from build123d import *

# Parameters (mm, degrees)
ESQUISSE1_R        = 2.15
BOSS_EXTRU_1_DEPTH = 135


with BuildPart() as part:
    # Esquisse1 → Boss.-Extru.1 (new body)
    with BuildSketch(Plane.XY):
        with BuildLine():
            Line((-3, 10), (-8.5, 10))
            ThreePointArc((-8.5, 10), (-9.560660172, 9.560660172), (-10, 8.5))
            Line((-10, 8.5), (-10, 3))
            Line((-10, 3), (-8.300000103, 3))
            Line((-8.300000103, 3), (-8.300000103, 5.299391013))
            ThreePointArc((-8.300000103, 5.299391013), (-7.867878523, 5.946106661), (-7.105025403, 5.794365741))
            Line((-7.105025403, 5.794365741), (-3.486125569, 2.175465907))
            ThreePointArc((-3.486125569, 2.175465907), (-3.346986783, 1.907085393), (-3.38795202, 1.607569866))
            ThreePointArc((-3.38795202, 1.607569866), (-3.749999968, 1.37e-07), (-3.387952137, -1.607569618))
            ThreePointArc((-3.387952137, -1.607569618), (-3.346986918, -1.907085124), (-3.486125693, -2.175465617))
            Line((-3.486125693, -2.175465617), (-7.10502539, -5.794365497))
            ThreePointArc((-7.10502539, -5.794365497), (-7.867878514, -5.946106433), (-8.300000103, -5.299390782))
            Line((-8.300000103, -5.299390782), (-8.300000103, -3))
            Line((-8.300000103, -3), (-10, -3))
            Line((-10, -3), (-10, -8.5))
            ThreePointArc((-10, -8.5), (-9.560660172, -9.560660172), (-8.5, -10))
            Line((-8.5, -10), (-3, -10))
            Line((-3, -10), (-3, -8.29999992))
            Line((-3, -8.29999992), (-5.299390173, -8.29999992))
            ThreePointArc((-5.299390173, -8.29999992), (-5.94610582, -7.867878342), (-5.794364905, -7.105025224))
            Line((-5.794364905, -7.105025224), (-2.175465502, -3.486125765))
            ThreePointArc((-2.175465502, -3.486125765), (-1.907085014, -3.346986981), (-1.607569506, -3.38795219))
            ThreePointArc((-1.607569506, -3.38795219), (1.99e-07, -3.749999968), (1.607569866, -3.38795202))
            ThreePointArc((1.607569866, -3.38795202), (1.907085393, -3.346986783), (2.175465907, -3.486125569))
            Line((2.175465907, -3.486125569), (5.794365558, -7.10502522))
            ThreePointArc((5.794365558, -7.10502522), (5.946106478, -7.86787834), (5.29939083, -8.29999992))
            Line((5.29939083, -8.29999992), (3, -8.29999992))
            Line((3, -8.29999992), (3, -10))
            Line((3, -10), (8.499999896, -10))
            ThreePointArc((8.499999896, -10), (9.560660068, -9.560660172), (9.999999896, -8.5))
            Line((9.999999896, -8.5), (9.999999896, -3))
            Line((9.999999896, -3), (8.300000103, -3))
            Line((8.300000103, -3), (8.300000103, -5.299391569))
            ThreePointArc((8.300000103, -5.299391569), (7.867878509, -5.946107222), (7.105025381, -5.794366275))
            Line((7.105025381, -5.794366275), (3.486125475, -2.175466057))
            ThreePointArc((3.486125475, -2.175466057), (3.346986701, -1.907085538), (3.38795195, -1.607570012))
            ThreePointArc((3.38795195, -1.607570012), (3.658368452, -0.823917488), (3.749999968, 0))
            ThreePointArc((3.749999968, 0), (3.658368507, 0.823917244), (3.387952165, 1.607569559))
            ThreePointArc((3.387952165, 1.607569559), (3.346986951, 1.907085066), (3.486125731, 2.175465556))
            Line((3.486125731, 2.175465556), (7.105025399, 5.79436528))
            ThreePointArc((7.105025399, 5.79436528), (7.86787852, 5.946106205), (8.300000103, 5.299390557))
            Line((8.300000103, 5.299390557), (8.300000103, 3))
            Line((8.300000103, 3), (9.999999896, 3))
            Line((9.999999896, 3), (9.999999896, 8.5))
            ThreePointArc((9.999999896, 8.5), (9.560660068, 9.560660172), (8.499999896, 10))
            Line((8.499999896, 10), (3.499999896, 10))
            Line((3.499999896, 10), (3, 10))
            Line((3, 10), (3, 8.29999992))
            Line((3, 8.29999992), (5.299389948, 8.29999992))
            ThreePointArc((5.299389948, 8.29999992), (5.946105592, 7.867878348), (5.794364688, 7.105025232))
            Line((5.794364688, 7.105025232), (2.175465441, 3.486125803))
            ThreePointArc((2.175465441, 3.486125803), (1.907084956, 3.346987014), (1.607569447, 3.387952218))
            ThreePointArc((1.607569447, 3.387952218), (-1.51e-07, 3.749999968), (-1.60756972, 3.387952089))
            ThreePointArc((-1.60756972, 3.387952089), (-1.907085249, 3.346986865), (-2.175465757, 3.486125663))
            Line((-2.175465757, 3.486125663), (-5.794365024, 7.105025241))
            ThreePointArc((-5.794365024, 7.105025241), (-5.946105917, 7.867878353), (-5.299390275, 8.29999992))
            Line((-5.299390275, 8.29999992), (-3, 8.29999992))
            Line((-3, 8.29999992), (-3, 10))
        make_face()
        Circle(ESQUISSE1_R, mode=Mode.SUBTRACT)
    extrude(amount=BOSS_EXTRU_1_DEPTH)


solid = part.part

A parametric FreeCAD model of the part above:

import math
import FreeCAD as App
import Part
import Sketcher
Q = App.Units.Quantity

doc = App.newDocument("Part")
body = doc.addObject("PartDesign::Body", "Body")

# Sketch on XY plane
sketch1 = body.newObject("Sketcher::SketchObject", "Sketch")
sketch1.AttachmentSupport = (doc.getObject("XY_Plane"), [""])
sketch1.MapMode = "FlatFace"
sketch1.addGeometry(Part.LineSegment(App.Vector(-3, 10, 0), App.Vector(-8.5, 10, 0)), False)
sketch1.addGeometry(Part.ArcOfCircle(Part.Circle(App.Vector(-8.5, 8.5, 0), App.Vector(0, 0, 1), 1.5), math.radians(90), math.radians(180)), False)
sketch1.addGeometry(Part.LineSegment(App.Vector(-10, 8.5, 0), App.Vector(-10, 3, 0)), False)
sketch1.addGeometry(Part.LineSegment(App.Vector(-10, 3, 0), App.Vector(-8.3, 3, 0)), False)
sketch1.addGeometry(Part.LineSegment(App.Vector(-8.3, 3, 0), App.Vector(-8.3, 5.299391, 0)), False)
sketch1.addGeometry(Part.ArcOfCircle(Part.Circle(App.Vector(-7.6, 5.299391, 0), App.Vector(0, 0, 1), 0.7), math.radians(45), math.radians(180)), False)
sketch1.addGeometry(Part.LineSegment(App.Vector(-7.105025, 5.794366, 0), App.Vector(-3.486126, 2.175466, 0)), False)
sketch1.addGeometry(Part.ArcOfCircle(Part.Circle(App.Vector(-3.839679, 1.821913, 0), App.Vector(0, 0, 1), 0.5), math.radians(-25.384155), math.radians(45)), False)
sketch1.addGeometry(Part.ArcOfCircle(Part.Circle(App.Vector(0, 0, 0), App.Vector(0, 0, 1), 3.75), math.radians(154.615845), math.radians(205.384151)), False)
sketch1.addGeometry(Part.ArcOfCircle(Part.Circle(App.Vector(-3.839679, -1.821912, 0), App.Vector(0, 0, 1), 0.5), math.radians(-44.999999), math.radians(25.384151)), False)
sketch1.addGeometry(Part.LineSegment(App.Vector(-3.486126, -2.175466, 0), App.Vector(-7.105025, -5.794365, 0)), False)
sketch1.addGeometry(Part.ArcOfCircle(Part.Circle(App.Vector(-7.6, -5.299391, 0), App.Vector(0, 0, 1), 0.7), math.radians(180), math.radians(315.000001)), False)
sketch1.addGeometry(Part.LineSegment(App.Vector(-8.3, -5.299391, 0), App.Vector(-8.3, -3, 0)), False)
sketch1.addGeometry(Part.LineSegment(App.Vector(-8.3, -3, 0), App.Vector(-10, -3, 0)), False)
sketch1.addGeometry(Part.LineSegment(App.Vector(-10, -3, 0), App.Vector(-10, -8.5, 0)), False)
sketch1.addGeometry(Part.ArcOfCircle(Part.Circle(App.Vector(-8.5, -8.5, 0), App.Vector(0, 0, 1), 1.5), math.radians(180), math.radians(270)), False)
sketch1.addGeometry(Part.LineSegment(App.Vector(-8.5, -10, 0), App.Vector(-3, -10, 0)), False)
sketch1.addGeometry(Part.LineSegment(App.Vector(-3, -10, 0), App.Vector(-3, -8.3, 0)), False)
sketch1.addGeometry(Part.LineSegment(App.Vector(-3, -8.3, 0), App.Vector(-5.29939, -8.3, 0)), False)
sketch1.addGeometry(Part.ArcOfCircle(Part.Circle(App.Vector(-5.29939, -7.6, 0), App.Vector(0, 0, 1), 0.7), math.radians(135), math.radians(270)), False)
sketch1.addGeometry(Part.LineSegment(App.Vector(-5.794365, -7.105025, 0), App.Vector(-2.175466, -3.486126, 0)), False)
sketch1.addGeometry(Part.ArcOfCircle(Part.Circle(App.Vector(-1.821912, -3.839679, 0), App.Vector(0, 0, 1), 0.5), math.radians(64.615851), math.radians(135)), False)
sketch1.addGeometry(Part.ArcOfCircle(Part.Circle(App.Vector(0, 0, 0), App.Vector(0, 0, 1), 3.75), math.radians(-115.384149), math.radians(-64.615845)), False)
sketch1.addGeometry(Part.ArcOfCircle(Part.Circle(App.Vector(1.821913, -3.839679, 0), App.Vector(0, 0, 1), 0.5), math.radians(45), math.radians(115.384155)), False)
sketch1.addGeometry(Part.LineSegment(App.Vector(2.175466, -3.486126, 0), App.Vector(5.794366, -7.105025, 0)), False)
sketch1.addGeometry(Part.ArcOfCircle(Part.Circle(App.Vector(5.299391, -7.6, 0), App.Vector(0, 0, 1), 0.7), math.radians(-90), math.radians(45)), False)
sketch1.addGeometry(Part.LineSegment(App.Vector(5.299391, -8.3, 0), App.Vector(3, -8.3, 0)), False)
sketch1.addGeometry(Part.LineSegment(App.Vector(3, -8.3, 0), App.Vector(3, -10, 0)), False)
sketch1.addGeometry(Part.LineSegment(App.Vector(3, -10, 0), App.Vector(8.5, -10, 0)), False)
sketch1.addGeometry(Part.ArcOfCircle(Part.Circle(App.Vector(8.5, -8.5, 0), App.Vector(0, 0, 1), 1.5), math.radians(-90), math.radians(0)), False)
sketch1.addGeometry(Part.LineSegment(App.Vector(10, -8.5, 0), App.Vector(10, -3, 0)), False)
sketch1.addGeometry(Part.LineSegment(App.Vector(10, -3, 0), App.Vector(8.3, -3, 0)), False)
sketch1.addGeometry(Part.LineSegment(App.Vector(8.3, -3, 0), App.Vector(8.3, -5.299392, 0)), False)
sketch1.addGeometry(Part.ArcOfCircle(Part.Circle(App.Vector(7.6, -5.299392, 0), App.Vector(0, 0, 1), 0.7), math.radians(-135.000002), math.radians(0)), False)
sketch1.addGeometry(Part.LineSegment(App.Vector(7.105025, -5.794366, 0), App.Vector(3.486125, -2.175466, 0)), False)
sketch1.addGeometry(Part.ArcOfCircle(Part.Circle(App.Vector(3.839679, -1.821913, 0), App.Vector(0, 0, 1), 0.5), math.radians(154.615843), math.radians(224.999997)), False)
sketch1.addGeometry(Part.ArcOfCircle(Part.Circle(App.Vector(0, 0, 0), App.Vector(0, 0, 1), 3.75), math.radians(-25.384157), math.radians(0)), False)
sketch1.addGeometry(Part.ArcOfCircle(Part.Circle(App.Vector(0, 0, 0), App.Vector(0, 0, 1), 3.75), math.radians(0), math.radians(25.38415)), False)
sketch1.addGeometry(Part.ArcOfCircle(Part.Circle(App.Vector(3.839679, 1.821912, 0), App.Vector(0, 0, 1), 0.5), math.radians(135), math.radians(205.38415)), False)
sketch1.addGeometry(Part.LineSegment(App.Vector(3.486126, 2.175466, 0), App.Vector(7.105025, 5.794365, 0)), False)
sketch1.addGeometry(Part.ArcOfCircle(Part.Circle(App.Vector(7.6, 5.299391, 0), App.Vector(0, 0, 1), 0.7), math.radians(0), math.radians(135)), False)
sketch1.addGeometry(Part.LineSegment(App.Vector(8.3, 5.299391, 0), App.Vector(8.3, 3, 0)), False)
sketch1.addGeometry(Part.LineSegment(App.Vector(8.3, 3, 0), App.Vector(10, 3, 0)), False)
sketch1.addGeometry(Part.LineSegment(App.Vector(10, 3, 0), App.Vector(10, 8.5, 0)), False)
sketch1.addGeometry(Part.ArcOfCircle(Part.Circle(App.Vector(8.5, 8.5, 0), App.Vector(0, 0, 1), 1.5), math.radians(0), math.radians(90)), False)
sketch1.addGeometry(Part.LineSegment(App.Vector(8.5, 10, 0), App.Vector(3, 10, 0)), False)
sketch1.addGeometry(Part.LineSegment(App.Vector(3, 10, 0), App.Vector(3, 8.3, 0)), False)
sketch1.addGeometry(Part.LineSegment(App.Vector(3, 8.3, 0), App.Vector(5.29939, 8.3, 0)), False)
sketch1.addGeometry(Part.ArcOfCircle(Part.Circle(App.Vector(5.29939, 7.6, 0), App.Vector(0, 0, 1), 0.7), math.radians(-44.999999), math.radians(90)), False)
sketch1.addGeometry(Part.LineSegment(App.Vector(5.794365, 7.105025, 0), App.Vector(2.175465, 3.486126, 0)), False)
sketch1.addGeometry(Part.ArcOfCircle(Part.Circle(App.Vector(1.821912, 3.839679, 0), App.Vector(0, 0, 1), 0.5), math.radians(-115.384148), math.radians(-44.999998)), False)
sketch1.addGeometry(Part.ArcOfCircle(Part.Circle(App.Vector(0, 0, 0), App.Vector(0, 0, 1), 3.75), math.radians(64.615852), math.radians(115.384152)), False)
sketch1.addGeometry(Part.ArcOfCircle(Part.Circle(App.Vector(-1.821912, 3.839679, 0), App.Vector(0, 0, 1), 0.5), math.radians(-135.000003), math.radians(-64.615848)), False)
sketch1.addGeometry(Part.LineSegment(App.Vector(-2.175466, 3.486126, 0), App.Vector(-5.794365, 7.105025, 0)), False)
sketch1.addGeometry(Part.ArcOfCircle(Part.Circle(App.Vector(-5.29939, 7.6, 0), App.Vector(0, 0, 1), 0.7), math.radians(90), math.radians(224.999998)), False)
sketch1.addGeometry(Part.LineSegment(App.Vector(-5.29939, 8.3, 0), App.Vector(-3, 8.3, 0)), False)
sketch1.addGeometry(Part.LineSegment(App.Vector(-3, 8.3, 0), App.Vector(-3, 10, 0)), False)
sketch1.addGeometry(Part.Circle(App.Vector(0, 0, 0), App.Vector(0, 0, 1), 2.15), False)
sketch1.addConstraint(Sketcher.Constraint("Tangent", 0, 2, 1, 1))
sketch1.addConstraint(Sketcher.Constraint("Tangent", 1, 2, 2, 1))
sketch1.addConstraint(Sketcher.Constraint("Coincident", 2, 2, 3, 1))
sketch1.addConstraint(Sketcher.Constraint("Coincident", 3, 2, 4, 1))
sketch1.addConstraint(Sketcher.Constraint("Tangent", 4, 2, 5, 2))
sketch1.addConstraint(Sketcher.Constraint("Tangent", 5, 1, 6, 1))
sketch1.addConstraint(Sketcher.Constraint("Tangent", 6, 2, 7, 2))
sketch1.addConstraint(Sketcher.Constraint("Tangent", 7, 1, 8, 1))
sketch1.addConstraint(Sketcher.Constraint("Tangent", 8, 2, 9, 2))
sketch1.addConstraint(Sketcher.Constraint("Tangent", 9, 1, 10, 1))
sketch1.addConstraint(Sketcher.Constraint("Tangent", 10, 2, 11, 2))
sketch1.addConstraint(Sketcher.Constraint("Tangent", 11, 1, 12, 1))
sketch1.addConstraint(Sketcher.Constraint("Coincident", 12, 2, 13, 1))
sketch1.addConstraint(Sketcher.Constraint("Coincident", 13, 2, 14, 1))
sketch1.addConstraint(Sketcher.Constraint("Tangent", 14, 2, 15, 1))
sketch1.addConstraint(Sketcher.Constraint("Tangent", 15, 2, 16, 1))
sketch1.addConstraint(Sketcher.Constraint("Coincident", 16, 2, 17, 1))
sketch1.addConstraint(Sketcher.Constraint("Coincident", 17, 2, 18, 1))
sketch1.addConstraint(Sketcher.Constraint("Tangent", 18, 2, 19, 2))
sketch1.addConstraint(Sketcher.Constraint("Tangent", 19, 1, 20, 1))
sketch1.addConstraint(Sketcher.Constraint("Tangent", 20, 2, 21, 2))
sketch1.addConstraint(Sketcher.Constraint("Tangent", 21, 1, 22, 1))
sketch1.addConstraint(Sketcher.Constraint("Tangent", 22, 2, 23, 2))
sketch1.addConstraint(Sketcher.Constraint("Tangent", 23, 1, 24, 1))
sketch1.addConstraint(Sketcher.Constraint("Tangent", 24, 2, 25, 2))
sketch1.addConstraint(Sketcher.Constraint("Tangent", 25, 1, 26, 1))
sketch1.addConstraint(Sketcher.Constraint("Coincident", 26, 2, 27, 1))
sketch1.addConstraint(Sketcher.Constraint("Coincident", 27, 2, 28, 1))
sketch1.addConstraint(Sketcher.Constraint("Tangent", 28, 2, 29, 1))
sketch1.addConstraint(Sketcher.Constraint("Tangent", 29, 2, 30, 1))
sketch1.addConstraint(Sketcher.Constraint("Coincident", 30, 2, 31, 1))
sketch1.addConstraint(Sketcher.Constraint("Coincident", 31, 2, 32, 1))
sketch1.addConstraint(Sketcher.Constraint("Tangent", 32, 2, 33, 2))
sketch1.addConstraint(Sketcher.Constraint("Tangent", 33, 1, 34, 1))
sketch1.addConstraint(Sketcher.Constraint("Tangent", 34, 2, 35, 2))
sketch1.addConstraint(Sketcher.Constraint("Tangent", 35, 1, 36, 1))
sketch1.addConstraint(Sketcher.Constraint("Tangent", 36, 2, 37, 1))
sketch1.addConstraint(Sketcher.Constraint("Tangent", 37, 2, 38, 2))
sketch1.addConstraint(Sketcher.Constraint("Tangent", 38, 1, 39, 1))
sketch1.addConstraint(Sketcher.Constraint("Tangent", 39, 2, 40, 2))
sketch1.addConstraint(Sketcher.Constraint("Tangent", 40, 1, 41, 1))
sketch1.addConstraint(Sketcher.Constraint("Coincident", 41, 2, 42, 1))
sketch1.addConstraint(Sketcher.Constraint("Coincident", 42, 2, 43, 1))
sketch1.addConstraint(Sketcher.Constraint("Tangent", 43, 2, 44, 1))
sketch1.addConstraint(Sketcher.Constraint("Tangent", 44, 2, 45, 1))
sketch1.addConstraint(Sketcher.Constraint("Coincident", 45, 2, 46, 1))
sketch1.addConstraint(Sketcher.Constraint("Coincident", 46, 2, 47, 1))
sketch1.addConstraint(Sketcher.Constraint("Tangent", 47, 2, 48, 2))
sketch1.addConstraint(Sketcher.Constraint("Tangent", 48, 1, 49, 1))
sketch1.addConstraint(Sketcher.Constraint("Tangent", 49, 2, 50, 2))
sketch1.addConstraint(Sketcher.Constraint("Tangent", 50, 1, 51, 1))
sketch1.addConstraint(Sketcher.Constraint("Tangent", 51, 2, 52, 2))
sketch1.addConstraint(Sketcher.Constraint("Tangent", 52, 1, 53, 1))
sketch1.addConstraint(Sketcher.Constraint("Tangent", 53, 2, 54, 2))
sketch1.addConstraint(Sketcher.Constraint("Tangent", 54, 1, 55, 1))
sketch1.addConstraint(Sketcher.Constraint("Coincident", 55, 2, 56, 1))
sketch1.addConstraint(Sketcher.Constraint("Coincident", 56, 2, 0, 1))
sketch1.addConstraint(Sketcher.Constraint("Horizontal", 0))
sketch1.addConstraint(Sketcher.Constraint("Vertical", 2))
sketch1.addConstraint(Sketcher.Constraint("Horizontal", 3))
sketch1.addConstraint(Sketcher.Constraint("Vertical", 4))
sketch1.addConstraint(Sketcher.Constraint("Vertical", 12))
sketch1.addConstraint(Sketcher.Constraint("Horizontal", 13))
sketch1.addConstraint(Sketcher.Constraint("Vertical", 14))
sketch1.addConstraint(Sketcher.Constraint("Horizontal", 16))
sketch1.addConstraint(Sketcher.Constraint("Vertical", 17))
sketch1.addConstraint(Sketcher.Constraint("Horizontal", 18))
sketch1.addConstraint(Sketcher.Constraint("Horizontal", 26))
sketch1.addConstraint(Sketcher.Constraint("Vertical", 27))
sketch1.addConstraint(Sketcher.Constraint("Horizontal", 28))
sketch1.addConstraint(Sketcher.Constraint("Vertical", 30))
sketch1.addConstraint(Sketcher.Constraint("Horizontal", 31))
sketch1.addConstraint(Sketcher.Constraint("Vertical", 32))
sketch1.addConstraint(Sketcher.Constraint("Vertical", 41))
sketch1.addConstraint(Sketcher.Constraint("Horizontal", 42))
sketch1.addConstraint(Sketcher.Constraint("Vertical", 43))
sketch1.addConstraint(Sketcher.Constraint("Horizontal", 45))
sketch1.addConstraint(Sketcher.Constraint("Vertical", 46))
sketch1.addConstraint(Sketcher.Constraint("Horizontal", 47))
sketch1.addConstraint(Sketcher.Constraint("Horizontal", 55))
sketch1.addConstraint(Sketcher.Constraint("Vertical", 56))
sketch1.addConstraint(Sketcher.Constraint("Coincident", 8, 3, -1, 1))
sketch1.addConstraint(Sketcher.Constraint("Coincident", 22, 3, -1, 1))
sketch1.addConstraint(Sketcher.Constraint("Coincident", 36, 3, -1, 1))
sketch1.addConstraint(Sketcher.Constraint("Coincident", 51, 3, -1, 1))
sketch1.addConstraint(Sketcher.Constraint("Coincident", 57, 3, -1, 1))
sketch1.addConstraint(Sketcher.Constraint("Equal", 7, 9))
sketch1.addConstraint(Sketcher.Constraint("Equal", 5, 11))
sketch1.addConstraint(Sketcher.Constraint("Equal", 1, 15))
sketch1.addConstraint(Sketcher.Constraint("Equal", 11, 19))
sketch1.addConstraint(Sketcher.Constraint("Equal", 9, 21))
sketch1.addConstraint(Sketcher.Constraint("Equal", 8, 22))
sketch1.addConstraint(Sketcher.Constraint("Equal", 21, 23))
sketch1.addConstraint(Sketcher.Constraint("Equal", 19, 25))
sketch1.addConstraint(Sketcher.Constraint("Equal", 15, 29))
sketch1.addConstraint(Sketcher.Constraint("Equal", 25, 33))
sketch1.addConstraint(Sketcher.Constraint("Equal", 23, 35))
sketch1.addConstraint(Sketcher.Constraint("Equal", 22, 36))
sketch1.addConstraint(Sketcher.Constraint("Equal", 36, 37))
sketch1.addConstraint(Sketcher.Constraint("Equal", 35, 38))
sketch1.addConstraint(Sketcher.Constraint("Equal", 33, 40))
sketch1.addConstraint(Sketcher.Constraint("Equal", 29, 44))
sketch1.addConstraint(Sketcher.Constraint("Equal", 40, 48))
sketch1.addConstraint(Sketcher.Constraint("Equal", 38, 50))
sketch1.addConstraint(Sketcher.Constraint("Equal", 37, 51))
sketch1.addConstraint(Sketcher.Constraint("Equal", 50, 52))
sketch1.addConstraint(Sketcher.Constraint("Equal", 48, 54))
sketch1.addConstraint(Sketcher.Constraint("Symmetric", 1, 3, 29, 3, -1, 1))
sketch1.addConstraint(Sketcher.Constraint("Symmetric", 5, 3, 33, 3, -1, 1))
sketch1.addConstraint(Sketcher.Constraint("Symmetric", 11, 3, 40, 3, -1, 1))
sketch1.addConstraint(Sketcher.Constraint("Symmetric", 15, 3, 44, 3, -1, 1))
sketch1.addConstraint(Sketcher.Constraint("Symmetric", 19, 3, 48, 3, -1, 1))
sketch1.addConstraint(Sketcher.Constraint("Symmetric", 25, 3, 54, 3, -1, 1))
sketch1.addConstraint(Sketcher.Constraint("Symmetric", 19, 3, 25, 3, -2))
sketch1.addConstraint(Sketcher.Constraint("Symmetric", 15, 3, 29, 3, -2))
sketch1.addConstraint(Sketcher.Constraint("Symmetric", 11, 3, 33, 3, -2))
sketch1.addConstraint(Sketcher.Constraint("PointOnObject", 36, 2, -1))
sketch1.addConstraint(Sketcher.Constraint("Perpendicular", 6, 10))
sketch1.addConstraint(Sketcher.Constraint("Parallel", 10, 20))
sketch1.addConstraint(Sketcher.Constraint("Perpendicular", 20, 24))
sketch1.addConstraint(Sketcher.Constraint("Parallel", 24, 34))
sketch1.addConstraint(Sketcher.Constraint("Perpendicular", 34, 39))
sketch1.addConstraint(Sketcher.Constraint("Parallel", 39, 49))
sketch1.addConstraint(Sketcher.Constraint("Perpendicular", 49, 53))
sketch1.addConstraint(Sketcher.Constraint("Horizontal", 21, 3, 23, 3))
sketch1.addConstraint(Sketcher.Constraint("Horizontal", 13, 2, 30, 2))
sketch1.addConstraint(Sketcher.Constraint("Horizontal", 3, 2, 41, 2))
sketch1.addConstraint(Sketcher.Constraint("Vertical", 27, 2, 45, 2))
sketch1.addConstraint(Sketcher.Constraint("Vertical", 17, 2, 55, 2))
sketch1.addConstraint(Sketcher.Constraint("Equal", 18, 26))
sketch1.addConstraint(Sketcher.Constraint("Equal", 45, 2))
sketch1.addConstraint(Sketcher.Constraint("Equal", 55, 4))
sketch1.addConstraint(Sketcher.Constraint("Equal", 4, 12))
sketch1.addConstraint(Sketcher.Constraint("Equal", 42, 17))
sketch1.addConstraint(Sketcher.Constraint("Equal", 10, 20))
sketch1.addConstraint(Sketcher.Constraint("Diameter", 57, Q("4.3 mm")))
sketch1.addConstraint(Sketcher.Constraint("Radius", 1, Q("1.5 mm")))
sketch1.addConstraint(Sketcher.Constraint("Radius", 5, Q("0.7 mm")))
sketch1.addConstraint(Sketcher.Constraint("Radius", 7, Q("0.5 mm")))
sketch1.addConstraint(Sketcher.Constraint("Radius", 8, Q("3.75 mm")))
sketch1.addConstraint(Sketcher.Constraint("DistanceX", 0, 2, 0, 1, Q("5.5 mm")))
sketch1.addConstraint(Sketcher.Constraint("DistanceX", 3, 1, 3, 2, Q("1.7 mm")))
sketch1.addConstraint(Sketcher.Constraint("DistanceY", -1, 1, 0, 2, Q("10 mm")))
sketch1.addConstraint(Sketcher.Constraint("DistanceX", 18, 2, 18, 1, Q("2.29939 mm")))
pad1 = body.newObject("PartDesign::Pad", "Pad")
pad1.Profile = sketch1
pad1.Length = 135

doc.recompute()
